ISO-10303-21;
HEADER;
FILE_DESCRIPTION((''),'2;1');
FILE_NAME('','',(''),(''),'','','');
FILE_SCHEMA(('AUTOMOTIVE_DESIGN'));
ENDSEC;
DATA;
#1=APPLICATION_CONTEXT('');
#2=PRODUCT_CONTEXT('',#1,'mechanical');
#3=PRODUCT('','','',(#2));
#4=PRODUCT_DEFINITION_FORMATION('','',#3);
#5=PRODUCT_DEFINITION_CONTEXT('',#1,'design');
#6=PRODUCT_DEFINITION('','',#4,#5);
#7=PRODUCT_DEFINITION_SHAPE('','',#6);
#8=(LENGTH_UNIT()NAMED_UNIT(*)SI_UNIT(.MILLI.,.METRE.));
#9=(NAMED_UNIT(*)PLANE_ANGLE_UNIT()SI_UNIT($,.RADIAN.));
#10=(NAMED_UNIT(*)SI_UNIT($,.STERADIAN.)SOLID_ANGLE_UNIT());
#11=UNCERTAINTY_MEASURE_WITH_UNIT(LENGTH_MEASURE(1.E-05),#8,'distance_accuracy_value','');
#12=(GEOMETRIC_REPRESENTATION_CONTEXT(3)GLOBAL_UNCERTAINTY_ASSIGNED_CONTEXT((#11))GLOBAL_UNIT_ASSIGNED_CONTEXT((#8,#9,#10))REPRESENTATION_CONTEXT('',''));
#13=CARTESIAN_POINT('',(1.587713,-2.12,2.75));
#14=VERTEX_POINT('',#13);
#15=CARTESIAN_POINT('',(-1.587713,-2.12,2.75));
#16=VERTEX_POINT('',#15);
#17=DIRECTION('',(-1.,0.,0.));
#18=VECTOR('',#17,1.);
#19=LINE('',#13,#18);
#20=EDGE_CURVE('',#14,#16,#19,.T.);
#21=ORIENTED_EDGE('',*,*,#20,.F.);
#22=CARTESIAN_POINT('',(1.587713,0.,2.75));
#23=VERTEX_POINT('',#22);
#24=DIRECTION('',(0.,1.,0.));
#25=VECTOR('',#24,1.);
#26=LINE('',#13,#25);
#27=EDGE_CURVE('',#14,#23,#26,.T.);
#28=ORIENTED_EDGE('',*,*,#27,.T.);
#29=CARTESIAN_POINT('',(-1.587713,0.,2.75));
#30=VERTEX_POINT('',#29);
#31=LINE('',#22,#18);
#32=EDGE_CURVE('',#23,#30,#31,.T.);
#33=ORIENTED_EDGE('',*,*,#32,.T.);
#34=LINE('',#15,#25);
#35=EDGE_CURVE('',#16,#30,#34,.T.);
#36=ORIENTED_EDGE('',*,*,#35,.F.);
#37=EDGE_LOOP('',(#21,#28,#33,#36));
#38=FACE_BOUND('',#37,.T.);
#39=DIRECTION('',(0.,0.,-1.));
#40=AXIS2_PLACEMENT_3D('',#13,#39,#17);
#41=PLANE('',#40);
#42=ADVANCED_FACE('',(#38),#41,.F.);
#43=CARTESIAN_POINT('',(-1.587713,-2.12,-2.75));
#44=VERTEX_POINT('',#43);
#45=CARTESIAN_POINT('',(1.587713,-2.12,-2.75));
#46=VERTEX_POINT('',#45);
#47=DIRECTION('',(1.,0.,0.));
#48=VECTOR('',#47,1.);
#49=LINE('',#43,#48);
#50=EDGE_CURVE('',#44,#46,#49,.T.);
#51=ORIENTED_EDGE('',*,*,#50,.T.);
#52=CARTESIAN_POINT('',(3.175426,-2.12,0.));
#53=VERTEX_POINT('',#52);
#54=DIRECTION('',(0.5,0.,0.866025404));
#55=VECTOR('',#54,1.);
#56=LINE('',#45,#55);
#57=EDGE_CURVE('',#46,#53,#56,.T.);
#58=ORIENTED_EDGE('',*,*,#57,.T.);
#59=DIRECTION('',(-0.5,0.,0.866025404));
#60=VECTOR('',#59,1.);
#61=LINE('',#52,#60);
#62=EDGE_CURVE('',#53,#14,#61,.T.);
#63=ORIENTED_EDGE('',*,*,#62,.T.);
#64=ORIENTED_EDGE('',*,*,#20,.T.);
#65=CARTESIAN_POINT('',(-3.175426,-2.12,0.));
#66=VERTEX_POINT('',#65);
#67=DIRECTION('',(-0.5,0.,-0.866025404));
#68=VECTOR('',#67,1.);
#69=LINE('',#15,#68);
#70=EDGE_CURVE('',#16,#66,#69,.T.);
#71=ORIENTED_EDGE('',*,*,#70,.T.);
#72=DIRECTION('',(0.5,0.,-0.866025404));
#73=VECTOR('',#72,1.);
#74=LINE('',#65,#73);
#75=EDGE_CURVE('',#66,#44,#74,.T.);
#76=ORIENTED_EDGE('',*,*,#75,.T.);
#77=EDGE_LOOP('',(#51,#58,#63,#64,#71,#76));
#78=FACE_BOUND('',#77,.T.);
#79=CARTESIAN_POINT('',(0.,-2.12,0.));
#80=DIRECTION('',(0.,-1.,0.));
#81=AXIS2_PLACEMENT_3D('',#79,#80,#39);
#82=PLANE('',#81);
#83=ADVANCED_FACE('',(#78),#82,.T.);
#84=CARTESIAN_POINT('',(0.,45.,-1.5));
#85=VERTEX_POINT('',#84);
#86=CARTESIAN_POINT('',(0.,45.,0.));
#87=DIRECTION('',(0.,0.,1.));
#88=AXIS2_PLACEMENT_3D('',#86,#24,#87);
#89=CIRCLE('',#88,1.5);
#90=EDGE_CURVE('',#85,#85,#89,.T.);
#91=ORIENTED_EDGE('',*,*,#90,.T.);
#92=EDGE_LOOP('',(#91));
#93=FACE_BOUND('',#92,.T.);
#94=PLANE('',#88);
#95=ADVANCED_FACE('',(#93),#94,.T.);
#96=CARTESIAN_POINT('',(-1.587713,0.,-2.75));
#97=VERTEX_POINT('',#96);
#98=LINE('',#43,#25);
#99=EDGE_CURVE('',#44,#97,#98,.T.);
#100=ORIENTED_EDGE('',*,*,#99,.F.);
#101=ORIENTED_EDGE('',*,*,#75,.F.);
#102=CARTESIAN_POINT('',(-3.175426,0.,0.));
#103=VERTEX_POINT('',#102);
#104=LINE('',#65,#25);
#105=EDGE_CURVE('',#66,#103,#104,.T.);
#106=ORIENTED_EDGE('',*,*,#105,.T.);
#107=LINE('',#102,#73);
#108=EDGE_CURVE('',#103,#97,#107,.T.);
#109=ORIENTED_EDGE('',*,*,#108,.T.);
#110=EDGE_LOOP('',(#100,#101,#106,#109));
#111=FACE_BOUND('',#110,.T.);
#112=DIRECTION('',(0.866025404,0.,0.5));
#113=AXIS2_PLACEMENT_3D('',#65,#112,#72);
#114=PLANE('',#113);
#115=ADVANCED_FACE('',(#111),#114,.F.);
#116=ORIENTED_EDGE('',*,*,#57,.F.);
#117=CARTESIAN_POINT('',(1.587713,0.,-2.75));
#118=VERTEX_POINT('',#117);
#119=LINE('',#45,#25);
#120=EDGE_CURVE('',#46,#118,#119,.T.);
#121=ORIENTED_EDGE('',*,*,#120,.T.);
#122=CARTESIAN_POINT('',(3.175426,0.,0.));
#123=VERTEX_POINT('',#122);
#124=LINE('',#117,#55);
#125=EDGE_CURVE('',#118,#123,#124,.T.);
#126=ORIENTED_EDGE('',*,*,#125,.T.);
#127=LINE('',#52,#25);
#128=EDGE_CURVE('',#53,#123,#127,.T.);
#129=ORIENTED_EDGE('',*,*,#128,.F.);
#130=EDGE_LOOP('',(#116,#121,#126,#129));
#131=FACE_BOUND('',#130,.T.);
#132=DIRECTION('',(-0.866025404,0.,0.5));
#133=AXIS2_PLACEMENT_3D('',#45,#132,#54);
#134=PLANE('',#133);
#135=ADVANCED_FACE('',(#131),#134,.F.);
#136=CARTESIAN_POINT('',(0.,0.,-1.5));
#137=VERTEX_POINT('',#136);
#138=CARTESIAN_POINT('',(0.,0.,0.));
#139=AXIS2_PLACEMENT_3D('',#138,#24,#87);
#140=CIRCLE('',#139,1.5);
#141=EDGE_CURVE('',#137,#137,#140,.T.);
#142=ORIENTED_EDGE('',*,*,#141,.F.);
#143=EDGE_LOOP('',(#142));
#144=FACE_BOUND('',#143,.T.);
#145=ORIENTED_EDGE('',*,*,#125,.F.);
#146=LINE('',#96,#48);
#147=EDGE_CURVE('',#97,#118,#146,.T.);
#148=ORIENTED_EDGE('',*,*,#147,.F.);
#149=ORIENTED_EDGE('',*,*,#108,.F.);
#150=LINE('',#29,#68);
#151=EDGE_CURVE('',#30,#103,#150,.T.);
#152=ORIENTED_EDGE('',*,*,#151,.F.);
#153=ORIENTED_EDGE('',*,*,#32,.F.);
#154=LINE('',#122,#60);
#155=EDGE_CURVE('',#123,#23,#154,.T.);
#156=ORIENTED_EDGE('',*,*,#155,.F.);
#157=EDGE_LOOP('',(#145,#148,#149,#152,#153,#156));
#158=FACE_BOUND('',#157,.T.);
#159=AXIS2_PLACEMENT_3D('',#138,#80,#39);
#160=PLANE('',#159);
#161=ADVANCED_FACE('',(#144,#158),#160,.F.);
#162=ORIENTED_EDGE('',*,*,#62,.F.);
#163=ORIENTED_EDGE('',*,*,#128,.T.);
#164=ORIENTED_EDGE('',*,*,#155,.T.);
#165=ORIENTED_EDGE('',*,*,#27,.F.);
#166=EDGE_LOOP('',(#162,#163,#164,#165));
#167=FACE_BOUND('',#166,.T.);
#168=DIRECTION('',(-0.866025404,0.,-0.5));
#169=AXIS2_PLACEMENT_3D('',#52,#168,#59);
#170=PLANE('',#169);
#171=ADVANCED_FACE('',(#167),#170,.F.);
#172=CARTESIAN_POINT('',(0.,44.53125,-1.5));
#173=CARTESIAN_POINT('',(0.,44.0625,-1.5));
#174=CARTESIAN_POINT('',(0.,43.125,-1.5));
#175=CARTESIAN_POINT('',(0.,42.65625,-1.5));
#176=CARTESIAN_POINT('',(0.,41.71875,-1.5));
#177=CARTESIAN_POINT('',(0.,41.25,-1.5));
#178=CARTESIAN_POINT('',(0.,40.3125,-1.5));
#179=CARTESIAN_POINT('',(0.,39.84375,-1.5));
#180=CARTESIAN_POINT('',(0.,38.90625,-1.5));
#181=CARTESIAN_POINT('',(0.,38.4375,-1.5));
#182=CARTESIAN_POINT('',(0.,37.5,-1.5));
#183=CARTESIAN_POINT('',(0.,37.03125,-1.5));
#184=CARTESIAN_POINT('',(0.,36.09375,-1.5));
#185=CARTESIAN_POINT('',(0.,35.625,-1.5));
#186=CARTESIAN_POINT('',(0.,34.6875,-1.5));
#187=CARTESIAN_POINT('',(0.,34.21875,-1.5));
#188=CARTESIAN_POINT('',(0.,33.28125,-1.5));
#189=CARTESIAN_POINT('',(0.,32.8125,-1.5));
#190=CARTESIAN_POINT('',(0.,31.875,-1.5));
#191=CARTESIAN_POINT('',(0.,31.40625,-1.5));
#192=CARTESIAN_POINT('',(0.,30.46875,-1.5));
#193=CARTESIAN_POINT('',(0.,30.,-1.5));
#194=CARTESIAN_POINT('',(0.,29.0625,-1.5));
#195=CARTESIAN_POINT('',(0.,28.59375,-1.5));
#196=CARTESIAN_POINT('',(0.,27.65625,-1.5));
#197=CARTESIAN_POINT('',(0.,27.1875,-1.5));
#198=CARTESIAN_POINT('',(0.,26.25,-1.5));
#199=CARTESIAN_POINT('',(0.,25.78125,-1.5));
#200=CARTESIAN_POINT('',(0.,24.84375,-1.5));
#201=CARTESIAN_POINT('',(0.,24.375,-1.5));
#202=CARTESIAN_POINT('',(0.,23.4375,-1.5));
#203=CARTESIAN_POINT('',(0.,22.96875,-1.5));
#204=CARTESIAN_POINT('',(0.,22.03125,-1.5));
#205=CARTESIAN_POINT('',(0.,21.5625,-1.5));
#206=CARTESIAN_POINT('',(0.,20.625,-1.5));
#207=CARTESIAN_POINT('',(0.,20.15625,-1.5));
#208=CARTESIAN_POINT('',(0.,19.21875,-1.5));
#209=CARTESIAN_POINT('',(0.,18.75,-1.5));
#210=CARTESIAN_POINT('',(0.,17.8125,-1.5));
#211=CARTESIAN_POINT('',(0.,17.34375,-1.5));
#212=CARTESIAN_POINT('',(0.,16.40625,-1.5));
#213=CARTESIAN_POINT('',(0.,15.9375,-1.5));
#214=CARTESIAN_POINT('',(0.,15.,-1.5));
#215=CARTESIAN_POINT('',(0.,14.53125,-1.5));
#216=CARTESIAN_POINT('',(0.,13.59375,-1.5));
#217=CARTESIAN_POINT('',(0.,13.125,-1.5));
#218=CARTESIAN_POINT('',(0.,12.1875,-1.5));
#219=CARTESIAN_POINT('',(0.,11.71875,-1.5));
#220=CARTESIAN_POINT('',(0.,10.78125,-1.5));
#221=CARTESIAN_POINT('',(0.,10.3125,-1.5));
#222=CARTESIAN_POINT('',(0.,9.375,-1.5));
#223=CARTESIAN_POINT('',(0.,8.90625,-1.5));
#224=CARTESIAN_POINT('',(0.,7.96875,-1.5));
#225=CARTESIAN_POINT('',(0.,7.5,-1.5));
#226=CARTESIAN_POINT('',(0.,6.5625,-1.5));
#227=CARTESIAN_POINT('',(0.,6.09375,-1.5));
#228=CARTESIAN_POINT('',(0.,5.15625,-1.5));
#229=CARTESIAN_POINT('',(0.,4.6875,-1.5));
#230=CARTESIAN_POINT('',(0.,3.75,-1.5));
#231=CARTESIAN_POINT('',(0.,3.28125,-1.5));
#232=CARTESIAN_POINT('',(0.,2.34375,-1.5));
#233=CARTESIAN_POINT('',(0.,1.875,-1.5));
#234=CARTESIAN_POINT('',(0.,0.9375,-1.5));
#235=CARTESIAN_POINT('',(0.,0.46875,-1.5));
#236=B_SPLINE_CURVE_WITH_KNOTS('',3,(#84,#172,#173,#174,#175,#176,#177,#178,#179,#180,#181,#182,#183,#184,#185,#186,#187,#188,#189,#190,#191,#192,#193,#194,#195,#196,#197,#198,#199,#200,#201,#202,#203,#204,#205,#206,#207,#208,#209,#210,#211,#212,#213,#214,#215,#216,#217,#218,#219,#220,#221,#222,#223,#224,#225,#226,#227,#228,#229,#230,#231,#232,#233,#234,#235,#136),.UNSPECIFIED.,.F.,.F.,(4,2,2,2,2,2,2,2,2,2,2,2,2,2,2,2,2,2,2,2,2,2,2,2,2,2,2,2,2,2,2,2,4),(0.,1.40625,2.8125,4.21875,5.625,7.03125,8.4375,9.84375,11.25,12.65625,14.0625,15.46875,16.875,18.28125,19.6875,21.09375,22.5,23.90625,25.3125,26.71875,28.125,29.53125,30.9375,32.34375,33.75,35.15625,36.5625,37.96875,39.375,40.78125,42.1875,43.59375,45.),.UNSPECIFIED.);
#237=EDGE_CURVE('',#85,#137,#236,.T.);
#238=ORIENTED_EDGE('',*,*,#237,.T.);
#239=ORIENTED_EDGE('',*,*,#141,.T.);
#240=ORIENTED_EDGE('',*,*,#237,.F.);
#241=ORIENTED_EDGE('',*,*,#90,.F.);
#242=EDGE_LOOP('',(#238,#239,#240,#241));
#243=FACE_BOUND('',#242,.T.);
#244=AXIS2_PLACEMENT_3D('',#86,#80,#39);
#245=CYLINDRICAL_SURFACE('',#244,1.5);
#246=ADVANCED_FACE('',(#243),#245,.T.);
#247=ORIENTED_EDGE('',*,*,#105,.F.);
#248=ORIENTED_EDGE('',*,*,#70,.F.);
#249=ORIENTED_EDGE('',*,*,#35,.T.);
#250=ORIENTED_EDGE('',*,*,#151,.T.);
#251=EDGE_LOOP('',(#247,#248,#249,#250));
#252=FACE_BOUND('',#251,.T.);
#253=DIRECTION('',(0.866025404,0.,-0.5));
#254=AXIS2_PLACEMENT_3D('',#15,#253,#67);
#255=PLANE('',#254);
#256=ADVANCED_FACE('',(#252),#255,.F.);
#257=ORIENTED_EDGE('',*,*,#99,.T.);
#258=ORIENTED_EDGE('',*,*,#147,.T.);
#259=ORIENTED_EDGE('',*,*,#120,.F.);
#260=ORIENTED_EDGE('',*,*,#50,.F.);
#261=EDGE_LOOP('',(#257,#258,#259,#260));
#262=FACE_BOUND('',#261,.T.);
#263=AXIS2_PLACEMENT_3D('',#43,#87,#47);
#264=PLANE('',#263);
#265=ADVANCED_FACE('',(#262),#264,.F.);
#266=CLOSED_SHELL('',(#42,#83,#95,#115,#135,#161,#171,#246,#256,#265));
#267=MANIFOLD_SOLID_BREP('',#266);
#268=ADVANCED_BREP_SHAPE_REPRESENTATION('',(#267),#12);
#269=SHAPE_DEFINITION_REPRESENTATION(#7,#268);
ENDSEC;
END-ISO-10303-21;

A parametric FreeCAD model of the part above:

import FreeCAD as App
import Part
import Sketcher

V = App.Vector
Q = App.Units.Quantity

doc = App.newDocument("Part")
body = doc.addObject("PartDesign::Body", "Body")

sketch1 = doc.addObject("Sketcher::SketchObject", "Sketch")
body.addObject(sketch1)
sketch1.AttachmentSupport = (doc.XZ_Plane, [""])
sketch1.MapMode = "FlatFace"
sketch1.addGeometry(Part.Circle(V(0, 0, 0), V(0, 0, 1), 1.5), False)
sketch1.addConstraint([
    Sketcher.Constraint("Coincident", 0, 3, -1, 1),
    Sketcher.Constraint("Diameter", 0, 3.0),
])
pad1 = doc.addObject("PartDesign::Pad", "Pad")
body.addObject(pad1)
pad1.Profile = sketch1
pad1.Length = 45
pad1.Reversed = True

sketch2 = doc.addObject("Sketcher::SketchObject", "Sketch001")
body.addObject(sketch2)
sketch2.AttachmentSupport = (doc.XZ_Plane, [""])
sketch2.MapMode = "FlatFace"
sketch2.addGeometry([
    Part.LineSegment(V(3.175426, 0, 0), V(1.587713, 2.75, 0)),
    Part.LineSegment(V(1.587713, 2.75, 0), V(-1.587713, 2.75, 0)),
    Part.LineSegment(V(-1.587713, 2.75, 0), V(-3.175426, 0, 0)),
    Part.LineSegment(V(-3.175426, 0, 0), V(-1.587713, -2.75, 0)),
    Part.LineSegment(V(-1.587713, -2.75, 0), V(1.587713, -2.75, 0)),
    Part.LineSegment(V(1.587713, -2.75, 0), V(3.175426, 0, 0)),
], False)
sketch2.addConstraint([
    Sketcher.Constraint("Coincident", 0, 2, 1, 1),
    Sketcher.Constraint("Coincident", 1, 2, 2, 1),
    Sketcher.Constraint("Coincident", 2, 2, 3, 1),
    Sketcher.Constraint("Coincident", 3, 2, 4, 1),
    Sketcher.Constraint("Coincident", 4, 2, 5, 1),
    Sketcher.Constraint("Coincident", 5, 2, 0, 1),
    Sketcher.Constraint("Horizontal", 1),
    Sketcher.Constraint("Horizontal", 4),
    Sketcher.Constraint("Symmetric", 0, 2, 3, 2, -1, 1),
    Sketcher.Constraint("Symmetric", 2, 2, 5, 2, -1, 1),
    Sketcher.Constraint("PointOnObject", 2, 2, -1),
    Sketcher.Constraint("Parallel", 2, 5),
    Sketcher.Constraint("Vertical", 1, 2, 3, 2),
    Sketcher.Constraint("Angle", 0, Q("120 deg")),
    Sketcher.Constraint("DistanceY", 3, 2, 1, 2, 5.5),
    Sketcher.Constraint("DistanceX", 1, 2, 1, 1, 3.175426),
])
pad2 = doc.addObject("PartDesign::Pad", "Pad001")
body.addObject(pad2)
pad2.Profile = sketch2
pad2.Length = 2.12

doc.recompute()
